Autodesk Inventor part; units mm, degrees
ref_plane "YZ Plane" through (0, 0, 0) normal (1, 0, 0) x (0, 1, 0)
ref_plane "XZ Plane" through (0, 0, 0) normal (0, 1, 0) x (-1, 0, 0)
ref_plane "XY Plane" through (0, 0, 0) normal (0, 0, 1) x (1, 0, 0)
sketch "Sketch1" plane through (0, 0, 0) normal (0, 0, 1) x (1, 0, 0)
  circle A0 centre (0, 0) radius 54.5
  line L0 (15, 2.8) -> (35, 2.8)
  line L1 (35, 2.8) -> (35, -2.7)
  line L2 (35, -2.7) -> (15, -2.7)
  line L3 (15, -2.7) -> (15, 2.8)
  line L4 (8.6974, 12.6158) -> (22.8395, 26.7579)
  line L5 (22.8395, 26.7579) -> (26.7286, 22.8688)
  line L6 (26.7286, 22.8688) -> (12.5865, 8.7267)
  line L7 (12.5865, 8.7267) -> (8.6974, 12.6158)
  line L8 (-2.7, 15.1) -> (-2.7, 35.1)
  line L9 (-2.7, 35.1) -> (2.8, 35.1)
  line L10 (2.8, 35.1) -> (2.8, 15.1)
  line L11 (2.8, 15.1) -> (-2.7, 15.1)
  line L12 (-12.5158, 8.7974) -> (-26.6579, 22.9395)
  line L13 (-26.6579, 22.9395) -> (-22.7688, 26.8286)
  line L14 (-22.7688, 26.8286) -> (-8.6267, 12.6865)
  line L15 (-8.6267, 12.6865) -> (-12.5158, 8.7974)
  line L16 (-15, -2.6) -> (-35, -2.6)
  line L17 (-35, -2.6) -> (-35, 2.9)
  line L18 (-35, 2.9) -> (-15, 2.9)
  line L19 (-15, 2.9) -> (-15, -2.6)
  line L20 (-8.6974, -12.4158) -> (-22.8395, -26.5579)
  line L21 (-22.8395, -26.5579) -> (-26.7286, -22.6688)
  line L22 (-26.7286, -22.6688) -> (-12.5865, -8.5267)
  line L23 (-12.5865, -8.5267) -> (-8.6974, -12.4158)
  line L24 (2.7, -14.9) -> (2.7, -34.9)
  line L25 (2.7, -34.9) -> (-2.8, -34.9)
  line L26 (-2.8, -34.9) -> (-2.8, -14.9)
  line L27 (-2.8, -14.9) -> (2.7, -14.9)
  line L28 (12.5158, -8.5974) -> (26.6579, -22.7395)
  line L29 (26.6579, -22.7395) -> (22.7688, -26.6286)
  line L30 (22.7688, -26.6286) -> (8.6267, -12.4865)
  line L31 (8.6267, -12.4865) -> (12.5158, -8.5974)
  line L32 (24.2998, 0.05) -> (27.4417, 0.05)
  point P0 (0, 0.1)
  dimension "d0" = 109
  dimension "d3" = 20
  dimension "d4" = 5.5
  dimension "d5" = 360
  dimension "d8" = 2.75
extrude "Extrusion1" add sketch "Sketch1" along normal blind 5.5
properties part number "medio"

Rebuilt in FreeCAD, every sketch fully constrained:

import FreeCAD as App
import Part
import Sketcher

V = App.Vector
Q = App.Units.Quantity


def add_polygon(sketch, points):
    """Adds a closed chain of lines whose ends are joined by coincident constraints."""
    first, n = sketch.GeometryCount, len(points)
    for a, b in zip(points, points[1:] + points[:1]):
        sketch.addGeometry(Part.LineSegment(App.Vector(*a, 0), App.Vector(*b, 0)), False)
    for i in range(n):
        sketch.addConstraint(Sketcher.Constraint("Coincident", first + i, 2, first + (i + 1) % n, 1))

doc = App.newDocument("Part")
params = doc.addObject("Spreadsheet::Sheet", "Params")
for row, (alias, value) in enumerate([
    ("sketch1_diameter", "109 mm"),
    ("sketch1_width", "20 mm"),
    ("sketch1_length", "20 mm"),
    ("sketch1_width2", "5.5 mm"),
    ("sketch1_length2", "5.5 mm"),
    ("pad1_length", "5.5 mm"),
], start=1):
    params.set(f"A{row}", alias)
    params.set(f"B{row}", "=" + value)
    params.setAlias(f"B{row}", alias)

body = doc.addObject("PartDesign::Body", "Body")

sketch1 = doc.addObject("Sketcher::SketchObject", "Sketch")
body.addObject(sketch1)
sketch1.AttachmentSupport = (doc.XY_Plane, [""])
sketch1.MapMode = "FlatFace"
sketch1.addGeometry(Part.Circle(V(0, 0, 0), V(0, 0, 1), 54), False)
add_polygon(sketch1, [(-13, -9), (-9, -12), (-23, -27), (-27, -23)])
add_polygon(sketch1, [(-3, -15), (3, -15), (3, -35), (-3, -35)])
add_polygon(sketch1, [(9, -12), (13, -9), (27, -23), (23, -27)])
add_polygon(sketch1, [(-15, 3), (-15, -3), (-35, -3), (-35, 3)])
add_polygon(sketch1, [(-9, 13), (-13, 9), (-27, 23), (-23, 27)])
add_polygon(sketch1, [(15, -3), (15, 3), (35, 3), (35, -3)])
add_polygon(sketch1, [(3, 15), (-3, 15), (-3, 35), (3, 35)])
add_polygon(sketch1, [(13, 9), (9, 13), (23, 27), (27, 23)])
sketch1.addConstraint(Sketcher.Constraint("Horizontal", 5))
sketch1.addConstraint(Sketcher.Constraint("Vertical", 6))
sketch1.addConstraint(Sketcher.Constraint("Horizontal", 7))
sketch1.addConstraint(Sketcher.Constraint("Vertical", 8))
sketch1.addConstraint(Sketcher.Constraint("Vertical", 13))
sketch1.addConstraint(Sketcher.Constraint("Horizontal", 14))
sketch1.addConstraint(Sketcher.Constraint("Vertical", 15))
sketch1.addConstraint(Sketcher.Constraint("Horizontal", 16))
sketch1.addConstraint(Sketcher.Constraint("Vertical", 21))
sketch1.addConstraint(Sketcher.Constraint("Horizontal", 22))
sketch1.addConstraint(Sketcher.Constraint("Vertical", 23))
sketch1.addConstraint(Sketcher.Constraint("Horizontal", 24))
sketch1.addConstraint(Sketcher.Constraint("Horizontal", 25))
sketch1.addConstraint(Sketcher.Constraint("Vertical", 26))
sketch1.addConstraint(Sketcher.Constraint("Horizontal", 27))
sketch1.addConstraint(Sketcher.Constraint("Vertical", 28))
sketch1.addConstraint(Sketcher.Constraint("Coincident", 0, 3, -1, 1))
sketch1.addConstraint(Sketcher.Constraint("Perpendicular", 1, 2))
sketch1.addConstraint(Sketcher.Constraint("Perpendicular", 2, 3))
sketch1.addConstraint(Sketcher.Constraint("Perpendicular", 3, 4))
sketch1.addConstraint(Sketcher.Constraint("Parallel", 4, 9))
sketch1.addConstraint(Sketcher.Constraint("Perpendicular", 9, 10))
sketch1.addConstraint(Sketcher.Constraint("Perpendicular", 10, 11))
sketch1.addConstraint(Sketcher.Constraint("Perpendicular", 11, 12))
sketch1.addConstraint(Sketcher.Constraint("Perpendicular", 12, 17))
sketch1.addConstraint(Sketcher.Constraint("Perpendicular", 17, 18))
sketch1.addConstraint(Sketcher.Constraint("Perpendicular", 18, 19))
sketch1.addConstraint(Sketcher.Constraint("Perpendicular", 19, 20))
sketch1.addConstraint(Sketcher.Constraint("Parallel", 20, 29))
sketch1.addConstraint(Sketcher.Constraint("Perpendicular", 29, 30))
sketch1.addConstraint(Sketcher.Constraint("Perpendicular", 30, 31))
sketch1.addConstraint(Sketcher.Constraint("Perpendicular", 31, 32))
sketch1.addConstraint(Sketcher.Constraint("Equal", 16, 22))
sketch1.addConstraint(Sketcher.Constraint("Equal", 7, 25))
sketch1.addConstraint(Sketcher.Constraint("Equal", 24, 6))
sketch1.addConstraint(Sketcher.Constraint("Equal", 27, 13))
sketch1.addConstraint(Sketcher.Constraint("Equal", 15, 21))
sketch1.addConstraint(Sketcher.Constraint("Equal", 8, 26))
sketch1.addConstraint(Sketcher.Constraint("Equal", 3, 9))
sketch1.addConstraint(Sketcher.Constraint("Equal", 4, 10))
sketch1.addConstraint(Sketcher.Constraint("Equal", 11, 17))
sketch1.addConstraint(Sketcher.Constraint("Equal", 12, 18))
sketch1.addConstraint(Sketcher.Constraint("Equal", 19, 29))
sketch1.addConstraint(Sketcher.Constraint("Equal", 20, 30))
sketch1.addConstraint(Sketcher.Constraint("Diameter", 0, Q("109 mm")))
sketch1.addConstraint(Sketcher.Constraint("DistanceX", 14, 2, 14, 1, Q("20 mm")))
sketch1.addConstraint(Sketcher.Constraint("Distance", 2, Q("20 mm")))
sketch1.addConstraint(Sketcher.Constraint("DistanceX", 5, 1, 5, 2, Q("5.5 mm")))
sketch1.addConstraint(Sketcher.Constraint("Distance", 1, Q("5.5 mm")))
sketch1.addConstraint(Sketcher.Constraint("Angle", 1, Q("-45 deg")))
sketch1.addConstraint(Sketcher.Constraint("DistanceX", 13, 2, -1, 1, Q("15 mm")))
sketch1.addConstraint(Sketcher.Constraint("DistanceX", -1, 1, 21, 2, Q("15 mm")))
sketch1.addConstraint(Sketcher.Constraint("DistanceX", -1, 1, 5, 2, Q("2.7 mm")))
sketch1.addConstraint(Sketcher.Constraint("DistanceY", 5, 2, -1, 1, Q("14.9 mm")))
sketch1.addConstraint(Sketcher.Constraint("DistanceY", 13, 2, -1, 1, Q("2.6 mm")))
sketch1.addConstraint(Sketcher.Constraint("DistanceY", -1, 1, 21, 2, Q("2.8 mm")))
sketch1.addConstraint(Sketcher.Constraint("DistanceX", 25, 2, -1, 1, Q("2.7 mm")))
sketch1.addConstraint(Sketcher.Constraint("DistanceY", -1, 1, 25, 2, Q("15.1 mm")))
sketch1.addConstraint(Sketcher.Constraint("DistanceY", 2, 2, -1, 1, Q("26.558 mm")))
sketch1.addConstraint(Sketcher.Constraint("DistanceX", -1, 1, 10, 2, Q("26.658 mm")))
sketch1.addConstraint(Sketcher.Constraint("DistanceX", 18, 2, -1, 1, Q("26.658 mm")))
sketch1.addConstraint(Sketcher.Constraint("DistanceY", -1, 1, 30, 2, Q("26.758 mm")))
sketch1.addConstraint(Sketcher.Constraint("DistanceX", 1, 2, 12, 2, Q("17.324 mm")))
sketch1.addConstraint(Sketcher.Constraint("DistanceY", 4, 2, 17, 2, Q("17.324 mm")))
sketch1.addConstraint(Sketcher.Constraint("DistanceY", 9, 2, -1, 1, Q("8.5974 mm")))
sketch1.addConstraint(Sketcher.Constraint("DistanceX", -1, 1, 29, 2, Q("8.6974 mm")))
sketch1.setExpression("Constraints[76]", "Params.sketch1_diameter")
sketch1.setExpression("Constraints[77]", "Params.sketch1_width")
sketch1.setExpression("Constraints[78]", "Params.sketch1_length")
sketch1.setExpression("Constraints[79]", "Params.sketch1_width2")
sketch1.setExpression("Constraints[80]", "Params.sketch1_length2")
pad1 = doc.addObject("PartDesign::Pad", "Pad")
body.addObject(pad1)
pad1.Profile = sketch1
pad1.setExpression("Length", "Params.pad1_length")

doc.recompute()
